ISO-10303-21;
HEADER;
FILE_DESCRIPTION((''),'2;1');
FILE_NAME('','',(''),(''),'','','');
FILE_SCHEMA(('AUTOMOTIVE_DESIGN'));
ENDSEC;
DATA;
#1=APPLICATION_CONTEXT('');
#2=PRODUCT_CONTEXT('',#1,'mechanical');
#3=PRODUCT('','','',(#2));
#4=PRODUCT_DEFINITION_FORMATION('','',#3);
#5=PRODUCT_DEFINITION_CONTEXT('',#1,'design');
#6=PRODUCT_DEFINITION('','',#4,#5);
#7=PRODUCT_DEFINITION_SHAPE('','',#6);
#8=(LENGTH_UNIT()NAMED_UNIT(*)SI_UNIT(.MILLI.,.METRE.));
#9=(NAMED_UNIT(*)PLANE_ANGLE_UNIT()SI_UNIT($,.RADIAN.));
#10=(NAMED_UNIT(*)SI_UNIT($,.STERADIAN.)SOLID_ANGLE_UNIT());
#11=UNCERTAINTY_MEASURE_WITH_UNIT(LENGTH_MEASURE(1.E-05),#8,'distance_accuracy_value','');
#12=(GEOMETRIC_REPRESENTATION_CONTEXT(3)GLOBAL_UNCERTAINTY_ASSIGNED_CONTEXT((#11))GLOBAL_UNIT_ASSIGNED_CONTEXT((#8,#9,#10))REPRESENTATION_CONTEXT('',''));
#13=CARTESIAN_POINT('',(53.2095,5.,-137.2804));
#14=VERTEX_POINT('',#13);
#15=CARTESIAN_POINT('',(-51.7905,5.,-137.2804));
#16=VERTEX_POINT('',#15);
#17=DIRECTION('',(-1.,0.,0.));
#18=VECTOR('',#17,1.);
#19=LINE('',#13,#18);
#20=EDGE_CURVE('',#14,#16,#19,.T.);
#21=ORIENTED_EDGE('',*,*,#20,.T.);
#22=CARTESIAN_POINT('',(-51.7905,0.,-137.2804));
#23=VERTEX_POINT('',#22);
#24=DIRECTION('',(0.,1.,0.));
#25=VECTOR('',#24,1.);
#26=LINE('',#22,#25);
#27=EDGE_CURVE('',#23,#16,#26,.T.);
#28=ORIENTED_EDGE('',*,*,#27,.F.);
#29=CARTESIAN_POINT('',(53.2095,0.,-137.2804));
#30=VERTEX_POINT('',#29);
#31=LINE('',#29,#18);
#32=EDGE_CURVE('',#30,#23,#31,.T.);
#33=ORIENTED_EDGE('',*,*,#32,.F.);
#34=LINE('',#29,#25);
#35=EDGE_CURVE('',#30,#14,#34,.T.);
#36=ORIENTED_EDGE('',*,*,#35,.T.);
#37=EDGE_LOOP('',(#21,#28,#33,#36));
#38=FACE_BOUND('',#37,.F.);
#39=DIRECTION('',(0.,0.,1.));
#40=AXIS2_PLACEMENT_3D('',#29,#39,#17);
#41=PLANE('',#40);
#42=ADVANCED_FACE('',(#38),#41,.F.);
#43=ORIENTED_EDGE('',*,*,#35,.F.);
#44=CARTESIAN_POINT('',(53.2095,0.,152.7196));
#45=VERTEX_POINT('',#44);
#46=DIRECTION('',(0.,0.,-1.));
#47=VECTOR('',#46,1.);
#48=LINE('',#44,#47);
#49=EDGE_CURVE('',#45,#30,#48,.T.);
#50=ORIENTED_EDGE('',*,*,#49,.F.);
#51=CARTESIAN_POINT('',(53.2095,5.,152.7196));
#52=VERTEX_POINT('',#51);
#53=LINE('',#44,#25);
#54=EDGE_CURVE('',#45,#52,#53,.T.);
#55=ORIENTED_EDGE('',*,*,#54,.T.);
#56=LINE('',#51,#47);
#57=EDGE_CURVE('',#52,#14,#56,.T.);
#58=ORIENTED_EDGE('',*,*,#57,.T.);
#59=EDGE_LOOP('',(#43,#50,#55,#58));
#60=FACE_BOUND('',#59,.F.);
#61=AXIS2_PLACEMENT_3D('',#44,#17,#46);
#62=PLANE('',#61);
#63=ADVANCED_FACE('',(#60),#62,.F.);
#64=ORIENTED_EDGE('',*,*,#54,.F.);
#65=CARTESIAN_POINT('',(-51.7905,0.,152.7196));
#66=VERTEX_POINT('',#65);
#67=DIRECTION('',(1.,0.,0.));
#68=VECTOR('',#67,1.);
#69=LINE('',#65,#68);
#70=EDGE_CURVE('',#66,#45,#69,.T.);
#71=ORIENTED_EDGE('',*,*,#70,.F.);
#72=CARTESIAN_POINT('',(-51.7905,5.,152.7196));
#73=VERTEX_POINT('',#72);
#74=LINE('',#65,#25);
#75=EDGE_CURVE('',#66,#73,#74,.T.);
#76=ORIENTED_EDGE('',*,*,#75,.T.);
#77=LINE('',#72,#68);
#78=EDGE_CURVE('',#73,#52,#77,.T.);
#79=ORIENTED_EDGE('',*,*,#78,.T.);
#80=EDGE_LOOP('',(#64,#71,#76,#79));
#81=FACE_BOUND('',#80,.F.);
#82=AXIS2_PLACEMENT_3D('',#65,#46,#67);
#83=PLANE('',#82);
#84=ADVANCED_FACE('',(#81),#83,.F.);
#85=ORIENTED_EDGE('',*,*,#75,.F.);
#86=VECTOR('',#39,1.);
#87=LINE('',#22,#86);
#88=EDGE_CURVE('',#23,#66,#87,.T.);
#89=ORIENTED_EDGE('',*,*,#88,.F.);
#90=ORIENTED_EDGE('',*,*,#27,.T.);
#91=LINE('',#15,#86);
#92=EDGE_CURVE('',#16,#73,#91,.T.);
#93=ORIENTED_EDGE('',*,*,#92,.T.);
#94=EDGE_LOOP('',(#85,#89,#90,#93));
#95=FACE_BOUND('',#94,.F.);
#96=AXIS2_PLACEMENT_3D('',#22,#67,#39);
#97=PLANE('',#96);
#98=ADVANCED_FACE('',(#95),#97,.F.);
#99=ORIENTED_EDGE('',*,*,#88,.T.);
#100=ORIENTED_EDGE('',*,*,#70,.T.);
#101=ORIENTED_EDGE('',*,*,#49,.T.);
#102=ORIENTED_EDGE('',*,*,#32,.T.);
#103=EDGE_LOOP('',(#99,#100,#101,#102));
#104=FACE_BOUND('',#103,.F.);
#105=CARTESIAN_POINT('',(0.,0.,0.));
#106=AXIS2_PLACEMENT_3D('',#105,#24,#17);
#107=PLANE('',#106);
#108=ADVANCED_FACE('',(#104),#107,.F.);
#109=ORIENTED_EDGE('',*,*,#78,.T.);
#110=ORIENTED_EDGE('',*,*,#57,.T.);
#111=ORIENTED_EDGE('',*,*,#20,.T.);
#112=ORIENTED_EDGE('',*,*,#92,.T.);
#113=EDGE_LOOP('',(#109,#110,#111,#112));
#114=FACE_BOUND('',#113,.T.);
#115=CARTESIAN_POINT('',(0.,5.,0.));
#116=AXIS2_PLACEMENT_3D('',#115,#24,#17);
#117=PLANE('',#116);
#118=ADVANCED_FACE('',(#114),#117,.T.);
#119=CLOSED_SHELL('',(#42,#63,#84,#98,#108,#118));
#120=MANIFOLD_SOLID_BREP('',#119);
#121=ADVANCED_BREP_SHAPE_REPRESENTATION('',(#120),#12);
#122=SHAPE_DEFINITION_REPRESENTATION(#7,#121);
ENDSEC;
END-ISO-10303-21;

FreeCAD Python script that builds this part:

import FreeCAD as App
import Part
import Sketcher
from FreeCAD import Vector

doc = App.newDocument("Part")
body = doc.addObject("PartDesign::Body", "Body")

sketch1 = body.newObject("Sketcher::SketchObject", "Sketch")
sketch1.AttachmentSupport = (doc.getObject("XZ_Plane"), [""])
sketch1.MapMode = "FlatFace"
sketch1.addGeometry(Part.LineSegment(Vector(-52, -137, 0), Vector(-52, 153, 0)), False)
sketch1.addGeometry(Part.LineSegment(Vector(-52, 153, 0), Vector(53, 153, 0)), False)
sketch1.addGeometry(Part.LineSegment(Vector(53, 153, 0), Vector(53, -137, 0)), False)
sketch1.addGeometry(Part.LineSegment(Vector(53, -137, 0), Vector(-52, -137, 0)), False)
sketch1.addConstraint(Sketcher.Constraint("Coincident", 0, 2, 1, 1))
sketch1.addConstraint(Sketcher.Constraint("Coincident", 1, 2, 2, 1))
sketch1.addConstraint(Sketcher.Constraint("Coincident", 2, 2, 3, 1))
sketch1.addConstraint(Sketcher.Constraint("Coincident", 3, 2, 0, 1))
sketch1.addConstraint(Sketcher.Constraint("Vertical", 0))
sketch1.addConstraint(Sketcher.Constraint("Horizontal", 1))
sketch1.addConstraint(Sketcher.Constraint("Vertical", 2))
sketch1.addConstraint(Sketcher.Constraint("Horizontal", 3))
sketch1.addConstraint(Sketcher.Constraint("DistanceX", 1, 1, 1, 2, 105.0))
sketch1.addConstraint(Sketcher.Constraint("DistanceY", 0, 1, 0, 2, 290.0))
sketch1.addConstraint(Sketcher.Constraint("DistanceX", 0, 2, -1, 1, 51.7905))
sketch1.addConstraint(Sketcher.Constraint("DistanceY", -1, 1, 0, 2, 152.7196))
pad1 = body.newObject("PartDesign::Pad", "Pad")
pad1.Profile = sketch1
pad1.Length = 5
pad1.Reversed = True

doc.recompute()
